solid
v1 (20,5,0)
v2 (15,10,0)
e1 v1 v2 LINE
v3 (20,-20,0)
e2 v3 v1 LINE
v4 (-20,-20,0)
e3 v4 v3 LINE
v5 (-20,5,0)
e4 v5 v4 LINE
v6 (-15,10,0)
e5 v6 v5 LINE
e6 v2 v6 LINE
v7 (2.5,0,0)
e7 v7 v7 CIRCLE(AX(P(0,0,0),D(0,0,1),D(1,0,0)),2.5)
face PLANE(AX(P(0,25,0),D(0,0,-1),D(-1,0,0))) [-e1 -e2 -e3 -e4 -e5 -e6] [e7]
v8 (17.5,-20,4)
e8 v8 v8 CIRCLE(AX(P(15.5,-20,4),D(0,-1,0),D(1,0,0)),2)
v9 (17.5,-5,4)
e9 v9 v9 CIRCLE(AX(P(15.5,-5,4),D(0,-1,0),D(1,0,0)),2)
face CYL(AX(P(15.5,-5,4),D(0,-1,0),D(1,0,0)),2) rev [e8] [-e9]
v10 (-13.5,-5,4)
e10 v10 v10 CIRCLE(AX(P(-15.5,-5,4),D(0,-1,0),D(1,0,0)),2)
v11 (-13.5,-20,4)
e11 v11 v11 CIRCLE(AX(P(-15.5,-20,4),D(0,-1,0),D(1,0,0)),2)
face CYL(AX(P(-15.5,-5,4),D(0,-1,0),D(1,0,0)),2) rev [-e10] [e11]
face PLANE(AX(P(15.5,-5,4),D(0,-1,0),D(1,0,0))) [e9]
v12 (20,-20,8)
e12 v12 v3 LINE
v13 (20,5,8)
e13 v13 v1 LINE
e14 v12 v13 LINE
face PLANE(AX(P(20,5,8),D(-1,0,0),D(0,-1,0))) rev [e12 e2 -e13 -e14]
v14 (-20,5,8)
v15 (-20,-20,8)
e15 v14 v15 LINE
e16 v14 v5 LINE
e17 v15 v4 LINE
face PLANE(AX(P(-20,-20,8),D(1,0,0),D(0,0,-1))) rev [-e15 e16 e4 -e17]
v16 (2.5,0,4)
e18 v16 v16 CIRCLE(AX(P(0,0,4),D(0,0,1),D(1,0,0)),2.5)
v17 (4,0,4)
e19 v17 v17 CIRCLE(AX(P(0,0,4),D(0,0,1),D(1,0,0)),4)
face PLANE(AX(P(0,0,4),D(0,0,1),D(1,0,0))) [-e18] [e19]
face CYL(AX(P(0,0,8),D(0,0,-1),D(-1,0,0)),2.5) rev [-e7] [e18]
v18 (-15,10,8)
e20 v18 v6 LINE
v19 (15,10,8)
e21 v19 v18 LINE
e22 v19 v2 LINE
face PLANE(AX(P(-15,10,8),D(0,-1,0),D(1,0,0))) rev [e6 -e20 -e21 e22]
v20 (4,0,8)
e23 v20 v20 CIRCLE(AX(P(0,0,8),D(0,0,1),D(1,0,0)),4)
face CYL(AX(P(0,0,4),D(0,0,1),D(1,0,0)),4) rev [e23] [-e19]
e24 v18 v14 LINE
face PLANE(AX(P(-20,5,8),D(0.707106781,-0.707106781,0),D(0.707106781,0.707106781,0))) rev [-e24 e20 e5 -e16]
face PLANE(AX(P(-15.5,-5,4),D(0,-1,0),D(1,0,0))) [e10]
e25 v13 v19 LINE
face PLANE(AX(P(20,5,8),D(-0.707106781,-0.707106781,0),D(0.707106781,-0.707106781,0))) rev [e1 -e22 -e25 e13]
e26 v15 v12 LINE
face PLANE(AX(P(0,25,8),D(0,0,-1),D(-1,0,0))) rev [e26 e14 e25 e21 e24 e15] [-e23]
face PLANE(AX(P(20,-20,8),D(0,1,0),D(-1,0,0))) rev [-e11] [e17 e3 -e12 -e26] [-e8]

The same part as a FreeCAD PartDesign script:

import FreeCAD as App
import Part
import Sketcher
Q = App.Units.Quantity

doc = App.newDocument("Part")
body = doc.addObject("PartDesign::Body", "Body")

# Sketch on XY plane
sketch1 = doc.addObject("Sketcher::SketchObject", "Sketch")
body.addObject(sketch1)
sketch1.AttachmentSupport = (doc.XY_Plane, [""])
sketch1.MapMode = "FlatFace"
sketch1.addGeometry(Part.LineSegment(App.Vector(-20, 5, 0), App.Vector(-20, -20, 0)), False)
sketch1.addGeometry(Part.LineSegment(App.Vector(-20, -20, 0), App.Vector(20, -20, 0)), False)
sketch1.addGeometry(Part.LineSegment(App.Vector(20, -20, 0), App.Vector(20, 5, 0)), False)
sketch1.addGeometry(Part.LineSegment(App.Vector(20, 5, 0), App.Vector(15, 10, 0)), False)
sketch1.addGeometry(Part.LineSegment(App.Vector(15, 10, 0), App.Vector(-15, 10, 0)), False)
sketch1.addGeometry(Part.LineSegment(App.Vector(-15, 10, 0), App.Vector(-20, 5, 0)), False)
sketch1.addGeometry(Part.Circle(App.Vector(0, 0, 0), App.Vector(0, 0, 1), 2.5), False)
sketch1.addConstraint(Sketcher.Constraint("Coincident", 0, 2, 1, 1))
sketch1.addConstraint(Sketcher.Constraint("Coincident", 1, 2, 2, 1))
sketch1.addConstraint(Sketcher.Constraint("Coincident", 2, 2, 3, 1))
sketch1.addConstraint(Sketcher.Constraint("Coincident", 3, 2, 4, 1))
sketch1.addConstraint(Sketcher.Constraint("Coincident", 4, 2, 5, 1))
sketch1.addConstraint(Sketcher.Constraint("Coincident", 5, 2, 0, 1))
sketch1.addConstraint(Sketcher.Constraint("Vertical", 0))
sketch1.addConstraint(Sketcher.Constraint("Horizontal", 1))
sketch1.addConstraint(Sketcher.Constraint("Vertical", 2))
sketch1.addConstraint(Sketcher.Constraint("Horizontal", 4))
sketch1.addConstraint(Sketcher.Constraint("Coincident", 6, 3, -1, 1))
sketch1.addConstraint(Sketcher.Constraint("Symmetric", 2, 2, 5, 2, -2))
sketch1.addConstraint(Sketcher.Constraint("Perpendicular", 3, 5))
sketch1.addConstraint(Sketcher.Constraint("Equal", 3, 5))
sketch1.addConstraint(Sketcher.Constraint("Diameter", 6, Q("5 mm")))
sketch1.addConstraint(Sketcher.Constraint("DistanceX", 1, 1, 1, 2, Q("40 mm")))
sketch1.addConstraint(Sketcher.Constraint("DistanceX", 4, 2, 4, 1, Q("30 mm")))
sketch1.addConstraint(Sketcher.Constraint("DistanceY", 0, 2, 0, 1, Q("25 mm")))
sketch1.addConstraint(Sketcher.Constraint("DistanceY", 0, 2, -1, 1, Q("20 mm")))
pad1 = doc.addObject("PartDesign::Pad", "Pad")
body.addObject(pad1)
pad1.Profile = sketch1
pad1.Length = 8

# Sketch on XY plane
sketch2 = doc.addObject("Sketcher::SketchObject", "Sketch001")
body.addObject(sketch2)
sketch2.AttachmentSupport = (doc.XY_Plane, [""])
sketch2.MapMode = "FlatFace"
sketch2.AttachmentOffset = App.Placement(App.Vector(0, 0, 8), App.Rotation())
sketch2.addGeometry(Part.Circle(App.Vector(0, 0, 0), App.Vector(0, 0, 1), 4), False)
sketch2.addConstraint(Sketcher.Constraint("Coincident", 0, 3, -1, 1))
sketch2.addConstraint(Sketcher.Constraint("Diameter", 0, Q("8 mm")))
pocket1 = doc.addObject("PartDesign::Pocket", "Pocket")
body.addObject(pocket1)
pocket1.Profile = sketch2
pocket1.Length = 4

# Sketch on XZ plane
sketch3 = doc.addObject("Sketcher::SketchObject", "Sketch002")
body.addObject(sketch3)
sketch3.AttachmentSupport = (doc.XZ_Plane, [""])
sketch3.MapMode = "FlatFace"
sketch3.AttachmentOffset = App.Placement(App.Vector(0, 0, 20), App.Rotation())
sketch3.addGeometry(Part.Circle(App.Vector(-15.5, 4, 0), App.Vector(0, 0, 1), 2), False)
sketch3.addGeometry(Part.Circle(App.Vector(15.5, 4, 0), App.Vector(0, 0, 1), 2), False)
sketch3.addConstraint(Sketcher.Constraint("Equal", 0, 1))
sketch3.addConstraint(Sketcher.Constraint("Symmetric", 0, 3, 1, 3, -2))
sketch3.addConstraint(Sketcher.Constraint("Diameter", 0, Q("4 mm")))
sketch3.addConstraint(Sketcher.Constraint("DistanceY", -1, 1, 0, 3, Q("4 mm")))
sketch3.addConstraint(Sketcher.Constraint("DistanceX", 0, 3, 1, 3, Q("31 mm")))
pocket2 = doc.addObject("PartDesign::Pocket", "Pocket001")
body.addObject(pocket2)
pocket2.Profile = sketch3
pocket2.Length = 15

doc.recompute()
